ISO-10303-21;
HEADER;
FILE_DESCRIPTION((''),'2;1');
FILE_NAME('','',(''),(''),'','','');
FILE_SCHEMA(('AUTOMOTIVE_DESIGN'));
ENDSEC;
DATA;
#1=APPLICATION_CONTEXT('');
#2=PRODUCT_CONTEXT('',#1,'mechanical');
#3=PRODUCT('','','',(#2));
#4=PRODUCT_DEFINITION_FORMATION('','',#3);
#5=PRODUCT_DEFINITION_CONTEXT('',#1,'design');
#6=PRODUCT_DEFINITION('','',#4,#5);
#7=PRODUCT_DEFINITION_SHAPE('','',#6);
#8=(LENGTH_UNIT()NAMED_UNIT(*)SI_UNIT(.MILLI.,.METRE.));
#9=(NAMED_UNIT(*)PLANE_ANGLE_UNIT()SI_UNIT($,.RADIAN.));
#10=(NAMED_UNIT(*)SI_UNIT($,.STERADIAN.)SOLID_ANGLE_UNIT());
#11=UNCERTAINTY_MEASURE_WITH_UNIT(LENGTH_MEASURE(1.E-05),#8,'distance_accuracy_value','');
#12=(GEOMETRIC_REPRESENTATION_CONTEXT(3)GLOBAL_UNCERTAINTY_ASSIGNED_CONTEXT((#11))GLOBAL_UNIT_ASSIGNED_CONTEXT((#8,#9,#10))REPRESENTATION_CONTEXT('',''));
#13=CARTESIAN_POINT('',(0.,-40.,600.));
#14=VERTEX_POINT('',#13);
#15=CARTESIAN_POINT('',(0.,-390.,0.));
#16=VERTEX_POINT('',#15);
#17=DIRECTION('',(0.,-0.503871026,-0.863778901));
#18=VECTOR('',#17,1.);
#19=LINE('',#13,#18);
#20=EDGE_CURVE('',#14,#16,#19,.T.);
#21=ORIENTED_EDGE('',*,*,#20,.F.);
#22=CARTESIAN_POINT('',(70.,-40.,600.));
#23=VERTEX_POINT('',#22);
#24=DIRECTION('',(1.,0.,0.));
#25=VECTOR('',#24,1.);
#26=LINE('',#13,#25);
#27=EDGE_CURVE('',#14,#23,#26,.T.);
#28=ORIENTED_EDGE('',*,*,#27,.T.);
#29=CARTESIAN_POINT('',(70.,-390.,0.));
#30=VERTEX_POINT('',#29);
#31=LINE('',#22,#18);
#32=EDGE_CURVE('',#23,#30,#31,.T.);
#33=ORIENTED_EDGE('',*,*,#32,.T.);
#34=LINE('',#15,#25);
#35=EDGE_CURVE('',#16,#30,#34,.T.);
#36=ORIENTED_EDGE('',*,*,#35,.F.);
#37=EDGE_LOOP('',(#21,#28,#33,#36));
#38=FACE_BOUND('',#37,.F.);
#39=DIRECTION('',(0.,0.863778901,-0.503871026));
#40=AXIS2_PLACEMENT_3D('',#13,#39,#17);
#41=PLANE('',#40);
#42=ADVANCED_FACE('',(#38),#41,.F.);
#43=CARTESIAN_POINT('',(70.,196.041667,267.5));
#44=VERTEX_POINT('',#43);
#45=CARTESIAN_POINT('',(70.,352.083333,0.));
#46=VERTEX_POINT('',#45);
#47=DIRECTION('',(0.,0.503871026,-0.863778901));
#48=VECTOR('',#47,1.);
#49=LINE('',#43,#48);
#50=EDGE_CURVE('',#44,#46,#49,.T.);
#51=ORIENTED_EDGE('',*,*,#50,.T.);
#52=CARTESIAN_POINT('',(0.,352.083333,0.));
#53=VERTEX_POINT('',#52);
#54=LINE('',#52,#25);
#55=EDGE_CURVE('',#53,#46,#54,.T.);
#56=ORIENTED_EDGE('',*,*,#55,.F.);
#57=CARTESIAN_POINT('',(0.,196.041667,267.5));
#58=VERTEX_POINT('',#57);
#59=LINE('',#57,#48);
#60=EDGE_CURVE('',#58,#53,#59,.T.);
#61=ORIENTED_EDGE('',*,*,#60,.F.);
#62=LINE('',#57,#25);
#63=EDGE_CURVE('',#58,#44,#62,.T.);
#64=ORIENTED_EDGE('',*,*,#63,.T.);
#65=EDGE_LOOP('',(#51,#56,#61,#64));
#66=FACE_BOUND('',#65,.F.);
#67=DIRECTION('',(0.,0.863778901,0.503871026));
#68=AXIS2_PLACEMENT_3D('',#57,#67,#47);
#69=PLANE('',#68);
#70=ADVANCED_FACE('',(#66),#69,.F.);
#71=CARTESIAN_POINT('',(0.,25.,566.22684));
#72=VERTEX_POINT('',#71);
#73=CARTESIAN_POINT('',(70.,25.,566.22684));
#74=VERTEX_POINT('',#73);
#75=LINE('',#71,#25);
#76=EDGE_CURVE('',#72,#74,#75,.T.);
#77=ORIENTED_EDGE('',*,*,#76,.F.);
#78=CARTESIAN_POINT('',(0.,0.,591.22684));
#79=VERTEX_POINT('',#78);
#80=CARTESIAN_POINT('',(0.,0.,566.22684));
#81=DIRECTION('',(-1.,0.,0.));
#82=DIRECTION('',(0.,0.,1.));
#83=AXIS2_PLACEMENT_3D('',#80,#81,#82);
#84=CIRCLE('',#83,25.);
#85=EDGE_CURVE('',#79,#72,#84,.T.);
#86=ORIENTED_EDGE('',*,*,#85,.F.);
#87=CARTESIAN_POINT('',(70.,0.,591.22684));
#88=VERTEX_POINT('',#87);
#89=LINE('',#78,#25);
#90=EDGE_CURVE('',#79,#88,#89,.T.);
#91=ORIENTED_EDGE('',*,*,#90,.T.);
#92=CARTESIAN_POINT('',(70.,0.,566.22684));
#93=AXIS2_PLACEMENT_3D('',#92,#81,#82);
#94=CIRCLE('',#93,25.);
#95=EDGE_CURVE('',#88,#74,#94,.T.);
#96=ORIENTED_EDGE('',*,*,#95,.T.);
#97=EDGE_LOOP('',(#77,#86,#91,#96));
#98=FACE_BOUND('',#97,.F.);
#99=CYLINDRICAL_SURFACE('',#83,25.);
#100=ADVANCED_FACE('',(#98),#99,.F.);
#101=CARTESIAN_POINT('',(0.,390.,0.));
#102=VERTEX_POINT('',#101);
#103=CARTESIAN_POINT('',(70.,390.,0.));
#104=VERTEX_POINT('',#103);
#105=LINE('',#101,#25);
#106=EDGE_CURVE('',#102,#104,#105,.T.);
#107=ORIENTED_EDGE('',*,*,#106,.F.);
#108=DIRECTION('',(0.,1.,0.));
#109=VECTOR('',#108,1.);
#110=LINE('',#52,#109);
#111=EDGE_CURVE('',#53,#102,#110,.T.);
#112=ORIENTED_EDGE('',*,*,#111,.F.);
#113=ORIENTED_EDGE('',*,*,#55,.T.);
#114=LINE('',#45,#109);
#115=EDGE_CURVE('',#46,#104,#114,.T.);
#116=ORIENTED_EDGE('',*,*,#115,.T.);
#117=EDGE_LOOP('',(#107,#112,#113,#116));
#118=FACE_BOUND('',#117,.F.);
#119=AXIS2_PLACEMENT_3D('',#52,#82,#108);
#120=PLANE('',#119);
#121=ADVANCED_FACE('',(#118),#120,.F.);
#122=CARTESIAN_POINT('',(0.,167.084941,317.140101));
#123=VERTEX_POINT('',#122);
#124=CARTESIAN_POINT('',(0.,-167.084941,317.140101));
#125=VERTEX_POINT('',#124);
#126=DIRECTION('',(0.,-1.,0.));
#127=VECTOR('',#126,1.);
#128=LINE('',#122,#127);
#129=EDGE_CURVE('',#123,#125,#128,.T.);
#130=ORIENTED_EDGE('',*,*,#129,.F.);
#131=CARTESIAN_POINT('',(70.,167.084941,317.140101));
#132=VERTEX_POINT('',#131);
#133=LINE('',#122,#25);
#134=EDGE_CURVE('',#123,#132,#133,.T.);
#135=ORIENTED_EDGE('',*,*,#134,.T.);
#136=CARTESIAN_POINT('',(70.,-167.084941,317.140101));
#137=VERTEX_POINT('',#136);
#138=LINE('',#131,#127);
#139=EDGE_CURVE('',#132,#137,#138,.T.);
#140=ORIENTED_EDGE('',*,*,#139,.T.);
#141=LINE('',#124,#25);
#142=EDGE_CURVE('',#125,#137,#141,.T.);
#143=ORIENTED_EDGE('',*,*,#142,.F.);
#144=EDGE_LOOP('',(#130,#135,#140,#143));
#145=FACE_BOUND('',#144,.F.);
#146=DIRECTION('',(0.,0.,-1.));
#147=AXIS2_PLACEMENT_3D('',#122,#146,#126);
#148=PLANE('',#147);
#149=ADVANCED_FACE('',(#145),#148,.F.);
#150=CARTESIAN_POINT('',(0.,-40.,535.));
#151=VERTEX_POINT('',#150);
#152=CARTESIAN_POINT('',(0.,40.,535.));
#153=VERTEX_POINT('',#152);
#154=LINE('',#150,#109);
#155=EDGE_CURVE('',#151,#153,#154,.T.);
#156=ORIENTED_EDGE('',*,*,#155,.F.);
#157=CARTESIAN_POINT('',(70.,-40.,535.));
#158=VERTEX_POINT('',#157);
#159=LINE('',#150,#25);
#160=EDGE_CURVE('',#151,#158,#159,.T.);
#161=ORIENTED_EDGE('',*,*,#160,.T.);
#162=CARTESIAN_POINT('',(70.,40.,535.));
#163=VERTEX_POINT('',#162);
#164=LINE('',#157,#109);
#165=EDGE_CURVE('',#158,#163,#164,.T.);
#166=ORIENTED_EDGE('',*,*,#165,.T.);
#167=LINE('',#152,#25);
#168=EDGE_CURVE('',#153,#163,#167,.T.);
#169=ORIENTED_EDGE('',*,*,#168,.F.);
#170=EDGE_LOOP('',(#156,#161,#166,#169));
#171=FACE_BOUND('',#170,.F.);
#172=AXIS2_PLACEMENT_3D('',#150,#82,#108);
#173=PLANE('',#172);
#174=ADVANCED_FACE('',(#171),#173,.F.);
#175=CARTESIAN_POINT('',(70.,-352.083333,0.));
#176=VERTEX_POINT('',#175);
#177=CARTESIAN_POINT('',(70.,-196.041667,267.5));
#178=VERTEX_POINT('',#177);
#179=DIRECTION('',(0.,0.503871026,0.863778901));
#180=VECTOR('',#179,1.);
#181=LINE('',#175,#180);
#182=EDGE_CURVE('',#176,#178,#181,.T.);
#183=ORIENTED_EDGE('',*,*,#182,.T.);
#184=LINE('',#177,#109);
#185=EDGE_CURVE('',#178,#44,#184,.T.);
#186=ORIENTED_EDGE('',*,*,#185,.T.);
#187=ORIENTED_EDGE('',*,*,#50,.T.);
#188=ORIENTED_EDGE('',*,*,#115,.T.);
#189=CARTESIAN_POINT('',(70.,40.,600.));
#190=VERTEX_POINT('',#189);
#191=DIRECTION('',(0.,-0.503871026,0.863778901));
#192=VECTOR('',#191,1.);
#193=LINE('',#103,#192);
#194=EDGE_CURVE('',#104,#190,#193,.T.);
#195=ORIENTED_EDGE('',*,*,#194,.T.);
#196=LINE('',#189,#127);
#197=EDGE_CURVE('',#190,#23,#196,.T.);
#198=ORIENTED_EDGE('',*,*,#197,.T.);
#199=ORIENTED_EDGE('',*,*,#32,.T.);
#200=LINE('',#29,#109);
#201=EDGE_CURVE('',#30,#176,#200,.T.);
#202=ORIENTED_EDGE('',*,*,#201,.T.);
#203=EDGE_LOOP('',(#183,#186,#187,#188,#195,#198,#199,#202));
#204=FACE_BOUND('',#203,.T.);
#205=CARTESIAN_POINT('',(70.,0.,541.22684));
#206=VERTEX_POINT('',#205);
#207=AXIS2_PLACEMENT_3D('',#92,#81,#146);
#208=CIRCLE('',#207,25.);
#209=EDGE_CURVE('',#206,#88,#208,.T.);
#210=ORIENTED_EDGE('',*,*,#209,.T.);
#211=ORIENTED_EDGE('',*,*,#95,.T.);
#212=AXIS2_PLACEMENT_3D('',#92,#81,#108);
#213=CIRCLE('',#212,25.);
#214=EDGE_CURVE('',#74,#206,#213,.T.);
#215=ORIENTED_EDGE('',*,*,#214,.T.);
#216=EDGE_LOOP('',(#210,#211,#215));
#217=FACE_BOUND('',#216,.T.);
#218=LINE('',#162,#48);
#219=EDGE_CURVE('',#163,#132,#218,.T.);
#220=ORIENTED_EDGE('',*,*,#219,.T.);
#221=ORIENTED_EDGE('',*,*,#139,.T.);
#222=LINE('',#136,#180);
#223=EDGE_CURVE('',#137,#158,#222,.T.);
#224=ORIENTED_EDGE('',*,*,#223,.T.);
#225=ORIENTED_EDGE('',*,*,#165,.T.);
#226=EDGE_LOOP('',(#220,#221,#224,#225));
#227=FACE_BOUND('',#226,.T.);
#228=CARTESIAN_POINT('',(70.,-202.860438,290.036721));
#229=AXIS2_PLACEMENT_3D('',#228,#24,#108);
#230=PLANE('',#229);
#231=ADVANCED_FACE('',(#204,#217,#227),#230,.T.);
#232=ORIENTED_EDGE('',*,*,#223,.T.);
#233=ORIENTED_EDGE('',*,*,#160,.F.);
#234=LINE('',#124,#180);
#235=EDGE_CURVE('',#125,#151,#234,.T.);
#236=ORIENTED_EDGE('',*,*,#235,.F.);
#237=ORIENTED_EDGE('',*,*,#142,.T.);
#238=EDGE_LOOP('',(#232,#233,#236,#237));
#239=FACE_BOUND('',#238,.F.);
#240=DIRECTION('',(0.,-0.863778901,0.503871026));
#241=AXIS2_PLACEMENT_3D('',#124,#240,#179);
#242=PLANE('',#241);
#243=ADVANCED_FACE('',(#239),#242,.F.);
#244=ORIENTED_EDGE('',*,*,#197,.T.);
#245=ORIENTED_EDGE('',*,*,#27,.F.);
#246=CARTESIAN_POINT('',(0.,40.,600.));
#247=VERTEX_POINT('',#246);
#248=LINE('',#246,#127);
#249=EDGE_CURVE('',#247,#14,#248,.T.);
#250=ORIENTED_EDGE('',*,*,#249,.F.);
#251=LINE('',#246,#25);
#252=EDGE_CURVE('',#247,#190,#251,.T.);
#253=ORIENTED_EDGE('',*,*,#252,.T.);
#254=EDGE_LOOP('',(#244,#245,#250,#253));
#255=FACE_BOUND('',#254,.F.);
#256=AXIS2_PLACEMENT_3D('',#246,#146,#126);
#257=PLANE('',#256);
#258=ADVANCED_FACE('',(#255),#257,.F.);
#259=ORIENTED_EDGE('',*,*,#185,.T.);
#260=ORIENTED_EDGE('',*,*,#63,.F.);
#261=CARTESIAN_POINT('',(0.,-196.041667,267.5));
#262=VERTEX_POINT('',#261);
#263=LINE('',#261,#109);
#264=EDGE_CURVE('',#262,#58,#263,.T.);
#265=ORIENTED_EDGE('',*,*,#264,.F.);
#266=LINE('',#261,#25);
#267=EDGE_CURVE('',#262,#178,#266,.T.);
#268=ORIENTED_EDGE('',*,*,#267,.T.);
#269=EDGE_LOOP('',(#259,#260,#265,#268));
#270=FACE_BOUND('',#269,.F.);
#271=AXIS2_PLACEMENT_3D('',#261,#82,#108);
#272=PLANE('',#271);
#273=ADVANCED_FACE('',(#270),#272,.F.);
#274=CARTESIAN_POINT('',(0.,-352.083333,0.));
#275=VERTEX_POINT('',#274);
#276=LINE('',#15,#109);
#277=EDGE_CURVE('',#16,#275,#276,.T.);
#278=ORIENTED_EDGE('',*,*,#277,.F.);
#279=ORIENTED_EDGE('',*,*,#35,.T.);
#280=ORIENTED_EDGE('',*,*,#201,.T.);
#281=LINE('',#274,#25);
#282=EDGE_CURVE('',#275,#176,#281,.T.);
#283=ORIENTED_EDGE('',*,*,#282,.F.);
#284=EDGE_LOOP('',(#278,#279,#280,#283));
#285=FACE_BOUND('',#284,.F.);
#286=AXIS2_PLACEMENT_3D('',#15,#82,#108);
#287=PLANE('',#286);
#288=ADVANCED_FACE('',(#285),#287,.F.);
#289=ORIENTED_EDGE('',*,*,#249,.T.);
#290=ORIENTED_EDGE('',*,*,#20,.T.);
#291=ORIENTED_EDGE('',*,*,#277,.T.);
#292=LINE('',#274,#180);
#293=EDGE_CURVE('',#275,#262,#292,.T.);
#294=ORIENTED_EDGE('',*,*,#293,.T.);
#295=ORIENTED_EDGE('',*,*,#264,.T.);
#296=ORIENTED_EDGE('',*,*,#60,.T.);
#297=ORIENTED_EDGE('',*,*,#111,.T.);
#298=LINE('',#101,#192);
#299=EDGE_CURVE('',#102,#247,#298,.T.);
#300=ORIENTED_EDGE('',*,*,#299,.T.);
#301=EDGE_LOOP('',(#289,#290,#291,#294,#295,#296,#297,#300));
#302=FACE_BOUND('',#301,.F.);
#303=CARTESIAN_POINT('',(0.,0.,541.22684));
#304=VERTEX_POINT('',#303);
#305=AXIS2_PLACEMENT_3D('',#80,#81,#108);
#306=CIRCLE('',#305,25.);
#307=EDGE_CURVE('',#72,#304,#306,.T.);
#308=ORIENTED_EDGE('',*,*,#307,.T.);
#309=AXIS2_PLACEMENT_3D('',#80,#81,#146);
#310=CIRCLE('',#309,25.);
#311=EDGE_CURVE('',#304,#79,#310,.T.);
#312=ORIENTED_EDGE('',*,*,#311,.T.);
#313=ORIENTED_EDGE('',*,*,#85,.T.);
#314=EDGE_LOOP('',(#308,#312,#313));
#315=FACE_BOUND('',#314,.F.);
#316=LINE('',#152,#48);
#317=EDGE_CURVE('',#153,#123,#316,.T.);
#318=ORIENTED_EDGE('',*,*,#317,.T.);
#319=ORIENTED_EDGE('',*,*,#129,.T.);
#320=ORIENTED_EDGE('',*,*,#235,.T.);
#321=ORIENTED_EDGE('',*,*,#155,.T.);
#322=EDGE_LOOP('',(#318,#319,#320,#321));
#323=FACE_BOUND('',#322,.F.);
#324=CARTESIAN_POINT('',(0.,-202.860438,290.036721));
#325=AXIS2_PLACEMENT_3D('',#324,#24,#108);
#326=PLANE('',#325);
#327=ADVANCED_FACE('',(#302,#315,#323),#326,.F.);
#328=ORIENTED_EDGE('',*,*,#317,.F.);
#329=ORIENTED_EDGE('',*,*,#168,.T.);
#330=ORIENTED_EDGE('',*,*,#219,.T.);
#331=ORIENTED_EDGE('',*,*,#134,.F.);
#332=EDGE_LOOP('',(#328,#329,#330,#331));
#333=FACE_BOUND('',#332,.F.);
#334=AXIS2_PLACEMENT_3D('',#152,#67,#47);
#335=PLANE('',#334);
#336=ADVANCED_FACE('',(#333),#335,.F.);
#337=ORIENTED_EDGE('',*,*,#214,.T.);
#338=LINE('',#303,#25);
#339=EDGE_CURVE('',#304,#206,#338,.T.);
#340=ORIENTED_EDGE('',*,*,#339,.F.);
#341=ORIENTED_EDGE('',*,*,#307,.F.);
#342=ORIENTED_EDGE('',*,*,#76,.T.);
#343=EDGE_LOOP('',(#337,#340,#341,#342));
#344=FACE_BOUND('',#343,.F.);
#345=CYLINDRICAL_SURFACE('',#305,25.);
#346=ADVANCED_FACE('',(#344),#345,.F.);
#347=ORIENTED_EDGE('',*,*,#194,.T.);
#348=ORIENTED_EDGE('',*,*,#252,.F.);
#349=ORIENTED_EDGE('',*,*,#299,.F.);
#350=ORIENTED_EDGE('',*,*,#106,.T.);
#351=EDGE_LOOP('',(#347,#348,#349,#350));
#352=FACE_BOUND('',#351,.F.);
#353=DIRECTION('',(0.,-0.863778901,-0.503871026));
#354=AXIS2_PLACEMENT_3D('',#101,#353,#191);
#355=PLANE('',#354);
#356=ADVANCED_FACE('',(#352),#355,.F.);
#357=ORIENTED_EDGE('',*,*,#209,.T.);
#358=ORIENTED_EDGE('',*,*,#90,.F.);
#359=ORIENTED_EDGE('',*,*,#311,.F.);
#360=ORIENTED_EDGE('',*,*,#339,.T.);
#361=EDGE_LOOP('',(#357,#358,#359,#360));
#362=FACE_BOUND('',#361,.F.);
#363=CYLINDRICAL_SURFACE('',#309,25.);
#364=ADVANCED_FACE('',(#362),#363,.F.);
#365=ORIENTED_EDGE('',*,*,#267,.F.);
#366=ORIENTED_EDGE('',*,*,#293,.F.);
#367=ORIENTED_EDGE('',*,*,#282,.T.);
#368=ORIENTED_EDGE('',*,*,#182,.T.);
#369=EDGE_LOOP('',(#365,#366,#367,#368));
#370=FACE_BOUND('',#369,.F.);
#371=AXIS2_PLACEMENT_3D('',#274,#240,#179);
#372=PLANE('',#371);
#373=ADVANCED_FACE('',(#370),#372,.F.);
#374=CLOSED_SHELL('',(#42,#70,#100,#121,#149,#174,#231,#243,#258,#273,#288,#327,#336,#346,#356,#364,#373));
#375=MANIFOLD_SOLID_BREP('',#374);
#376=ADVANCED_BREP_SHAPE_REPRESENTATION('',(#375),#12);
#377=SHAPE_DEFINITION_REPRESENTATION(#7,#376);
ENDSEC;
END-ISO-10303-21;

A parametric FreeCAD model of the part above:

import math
import FreeCAD as App
import Part
import Sketcher

V = App.Vector


def add_polygon(sketch, points):
    """Adds a closed chain of lines whose ends are joined by coincident constraints."""
    first, n = sketch.GeometryCount, len(points)
    for a, b in zip(points, points[1:] + points[:1]):
        sketch.addGeometry(Part.LineSegment(App.Vector(*a, 0), App.Vector(*b, 0)), False)
    for i in range(n):
        sketch.addConstraint(Sketcher.Constraint("Coincident", first + i, 2, first + (i + 1) % n, 1))

doc = App.newDocument("Part")
params = doc.addObject("Spreadsheet::Sheet", "Params")
for row, (alias, value) in enumerate([
    ("sketch1_radius", "25 mm"),
    ("sketch1_width", "80 mm"),
    ("pad1_length", "70 mm"),
], start=1):
    params.set(f"A{row}", alias)
    params.set(f"B{row}", "=" + value)
    params.setAlias(f"B{row}", alias)

body = doc.addObject("PartDesign::Body", "Body")

sketch1 = body.newObject("Sketcher::SketchObject", "Sketch")
sketch1.AttachmentSupport = (doc.getObject("YZ_Plane"), [""])
sketch1.MapMode = "FlatFace"
add_polygon(sketch1, [(-390, 0), (-352, 0), (-196, 268), (196, 268), (352, 0), (390, 0), (40, 600), (-40, 600)])
add_polygon(sketch1, [(-167, 317), (-40, 535), (40, 535), (167, 317)])
sketch1.addGeometry(Part.ArcOfCircle(Part.Circle(V(0, 566, 0), V(0, 0, 1), 25), math.radians(90), math.radians(270)), False)
sketch1.addGeometry(Part.ArcOfCircle(Part.Circle(V(0, 566, 0), V(0, 0, 1), 25), math.radians(0), math.radians(90)), False)
sketch1.addGeometry(Part.ArcOfCircle(Part.Circle(V(0, 566, 0), V(0, 0, 1), 25), math.radians(-90), math.radians(0)), False)
sketch1.addConstraint([
    Sketcher.Constraint("Tangent", 12, 1, 13, 2),
    Sketcher.Constraint("Tangent", 13, 1, 14, 2),
    Sketcher.Constraint("Tangent", 14, 1, 12, 2),
    Sketcher.Constraint("Horizontal", 0),
    Sketcher.Constraint("Horizontal", 2),
    Sketcher.Constraint("Horizontal", 4),
    Sketcher.Constraint("Horizontal", 6),
    Sketcher.Constraint("Horizontal", 9),
    Sketcher.Constraint("Horizontal", 11),
    Sketcher.Constraint("Symmetric", 0, 2, 3, 2, -1, 1),
    Sketcher.Constraint("Symmetric", 4, 2, 7, 2, -2),
    Sketcher.Constraint("PointOnObject", 12, 3, -2),
    Sketcher.Constraint("PointOnObject", 12, 1, -2),
    Sketcher.Constraint("PointOnObject", 14, 1, -2),
    Sketcher.Constraint("Parallel", 3, 5),
    Sketcher.Constraint("Parallel", 1, 7),
    Sketcher.Constraint("Parallel", 7, 8),
    Sketcher.Constraint("Parallel", 5, 10),
    Sketcher.Constraint("Horizontal", 14, 3, 13, 1),
    Sketcher.Constraint("Vertical", 6, 2, 8, 2),
    Sketcher.Constraint("Vertical", 5, 2, 9, 2),
    Sketcher.Constraint("Equal", 1, 3),
    Sketcher.Constraint("Radius", 12, 25.0),
    Sketcher.Constraint("DistanceX", 6, 2, 6, 1, 80.0),
    Sketcher.Constraint("DistanceX", -1, 1, 4, 2, 390.0),
    Sketcher.Constraint("DistanceY", -1, 1, 5, 2, 600.0),
    Sketcher.Constraint("DistanceY", -1, 1, 8, 2, 535.0),
    Sketcher.Constraint("DistanceY", -1, 1, 1, 2, 267.5),
    Sketcher.Constraint("DistanceX", 0, 2, 2, 2, 548.125),
    Sketcher.Constraint("DistanceX", 11, 2, 11, 1, 334.169882),
    Sketcher.Constraint("DistanceY", -1, 1, 12, 3, 566.22684),
])
sketch1.setExpression("Constraints[34]", "Params.sketch1_radius")
sketch1.setExpression("Constraints[35]", "Params.sketch1_width")
pad1 = body.newObject("PartDesign::Pad", "Pad")
pad1.Profile = sketch1
pad1.setExpression("Length", "Params.pad1_length")

doc.recompute()
